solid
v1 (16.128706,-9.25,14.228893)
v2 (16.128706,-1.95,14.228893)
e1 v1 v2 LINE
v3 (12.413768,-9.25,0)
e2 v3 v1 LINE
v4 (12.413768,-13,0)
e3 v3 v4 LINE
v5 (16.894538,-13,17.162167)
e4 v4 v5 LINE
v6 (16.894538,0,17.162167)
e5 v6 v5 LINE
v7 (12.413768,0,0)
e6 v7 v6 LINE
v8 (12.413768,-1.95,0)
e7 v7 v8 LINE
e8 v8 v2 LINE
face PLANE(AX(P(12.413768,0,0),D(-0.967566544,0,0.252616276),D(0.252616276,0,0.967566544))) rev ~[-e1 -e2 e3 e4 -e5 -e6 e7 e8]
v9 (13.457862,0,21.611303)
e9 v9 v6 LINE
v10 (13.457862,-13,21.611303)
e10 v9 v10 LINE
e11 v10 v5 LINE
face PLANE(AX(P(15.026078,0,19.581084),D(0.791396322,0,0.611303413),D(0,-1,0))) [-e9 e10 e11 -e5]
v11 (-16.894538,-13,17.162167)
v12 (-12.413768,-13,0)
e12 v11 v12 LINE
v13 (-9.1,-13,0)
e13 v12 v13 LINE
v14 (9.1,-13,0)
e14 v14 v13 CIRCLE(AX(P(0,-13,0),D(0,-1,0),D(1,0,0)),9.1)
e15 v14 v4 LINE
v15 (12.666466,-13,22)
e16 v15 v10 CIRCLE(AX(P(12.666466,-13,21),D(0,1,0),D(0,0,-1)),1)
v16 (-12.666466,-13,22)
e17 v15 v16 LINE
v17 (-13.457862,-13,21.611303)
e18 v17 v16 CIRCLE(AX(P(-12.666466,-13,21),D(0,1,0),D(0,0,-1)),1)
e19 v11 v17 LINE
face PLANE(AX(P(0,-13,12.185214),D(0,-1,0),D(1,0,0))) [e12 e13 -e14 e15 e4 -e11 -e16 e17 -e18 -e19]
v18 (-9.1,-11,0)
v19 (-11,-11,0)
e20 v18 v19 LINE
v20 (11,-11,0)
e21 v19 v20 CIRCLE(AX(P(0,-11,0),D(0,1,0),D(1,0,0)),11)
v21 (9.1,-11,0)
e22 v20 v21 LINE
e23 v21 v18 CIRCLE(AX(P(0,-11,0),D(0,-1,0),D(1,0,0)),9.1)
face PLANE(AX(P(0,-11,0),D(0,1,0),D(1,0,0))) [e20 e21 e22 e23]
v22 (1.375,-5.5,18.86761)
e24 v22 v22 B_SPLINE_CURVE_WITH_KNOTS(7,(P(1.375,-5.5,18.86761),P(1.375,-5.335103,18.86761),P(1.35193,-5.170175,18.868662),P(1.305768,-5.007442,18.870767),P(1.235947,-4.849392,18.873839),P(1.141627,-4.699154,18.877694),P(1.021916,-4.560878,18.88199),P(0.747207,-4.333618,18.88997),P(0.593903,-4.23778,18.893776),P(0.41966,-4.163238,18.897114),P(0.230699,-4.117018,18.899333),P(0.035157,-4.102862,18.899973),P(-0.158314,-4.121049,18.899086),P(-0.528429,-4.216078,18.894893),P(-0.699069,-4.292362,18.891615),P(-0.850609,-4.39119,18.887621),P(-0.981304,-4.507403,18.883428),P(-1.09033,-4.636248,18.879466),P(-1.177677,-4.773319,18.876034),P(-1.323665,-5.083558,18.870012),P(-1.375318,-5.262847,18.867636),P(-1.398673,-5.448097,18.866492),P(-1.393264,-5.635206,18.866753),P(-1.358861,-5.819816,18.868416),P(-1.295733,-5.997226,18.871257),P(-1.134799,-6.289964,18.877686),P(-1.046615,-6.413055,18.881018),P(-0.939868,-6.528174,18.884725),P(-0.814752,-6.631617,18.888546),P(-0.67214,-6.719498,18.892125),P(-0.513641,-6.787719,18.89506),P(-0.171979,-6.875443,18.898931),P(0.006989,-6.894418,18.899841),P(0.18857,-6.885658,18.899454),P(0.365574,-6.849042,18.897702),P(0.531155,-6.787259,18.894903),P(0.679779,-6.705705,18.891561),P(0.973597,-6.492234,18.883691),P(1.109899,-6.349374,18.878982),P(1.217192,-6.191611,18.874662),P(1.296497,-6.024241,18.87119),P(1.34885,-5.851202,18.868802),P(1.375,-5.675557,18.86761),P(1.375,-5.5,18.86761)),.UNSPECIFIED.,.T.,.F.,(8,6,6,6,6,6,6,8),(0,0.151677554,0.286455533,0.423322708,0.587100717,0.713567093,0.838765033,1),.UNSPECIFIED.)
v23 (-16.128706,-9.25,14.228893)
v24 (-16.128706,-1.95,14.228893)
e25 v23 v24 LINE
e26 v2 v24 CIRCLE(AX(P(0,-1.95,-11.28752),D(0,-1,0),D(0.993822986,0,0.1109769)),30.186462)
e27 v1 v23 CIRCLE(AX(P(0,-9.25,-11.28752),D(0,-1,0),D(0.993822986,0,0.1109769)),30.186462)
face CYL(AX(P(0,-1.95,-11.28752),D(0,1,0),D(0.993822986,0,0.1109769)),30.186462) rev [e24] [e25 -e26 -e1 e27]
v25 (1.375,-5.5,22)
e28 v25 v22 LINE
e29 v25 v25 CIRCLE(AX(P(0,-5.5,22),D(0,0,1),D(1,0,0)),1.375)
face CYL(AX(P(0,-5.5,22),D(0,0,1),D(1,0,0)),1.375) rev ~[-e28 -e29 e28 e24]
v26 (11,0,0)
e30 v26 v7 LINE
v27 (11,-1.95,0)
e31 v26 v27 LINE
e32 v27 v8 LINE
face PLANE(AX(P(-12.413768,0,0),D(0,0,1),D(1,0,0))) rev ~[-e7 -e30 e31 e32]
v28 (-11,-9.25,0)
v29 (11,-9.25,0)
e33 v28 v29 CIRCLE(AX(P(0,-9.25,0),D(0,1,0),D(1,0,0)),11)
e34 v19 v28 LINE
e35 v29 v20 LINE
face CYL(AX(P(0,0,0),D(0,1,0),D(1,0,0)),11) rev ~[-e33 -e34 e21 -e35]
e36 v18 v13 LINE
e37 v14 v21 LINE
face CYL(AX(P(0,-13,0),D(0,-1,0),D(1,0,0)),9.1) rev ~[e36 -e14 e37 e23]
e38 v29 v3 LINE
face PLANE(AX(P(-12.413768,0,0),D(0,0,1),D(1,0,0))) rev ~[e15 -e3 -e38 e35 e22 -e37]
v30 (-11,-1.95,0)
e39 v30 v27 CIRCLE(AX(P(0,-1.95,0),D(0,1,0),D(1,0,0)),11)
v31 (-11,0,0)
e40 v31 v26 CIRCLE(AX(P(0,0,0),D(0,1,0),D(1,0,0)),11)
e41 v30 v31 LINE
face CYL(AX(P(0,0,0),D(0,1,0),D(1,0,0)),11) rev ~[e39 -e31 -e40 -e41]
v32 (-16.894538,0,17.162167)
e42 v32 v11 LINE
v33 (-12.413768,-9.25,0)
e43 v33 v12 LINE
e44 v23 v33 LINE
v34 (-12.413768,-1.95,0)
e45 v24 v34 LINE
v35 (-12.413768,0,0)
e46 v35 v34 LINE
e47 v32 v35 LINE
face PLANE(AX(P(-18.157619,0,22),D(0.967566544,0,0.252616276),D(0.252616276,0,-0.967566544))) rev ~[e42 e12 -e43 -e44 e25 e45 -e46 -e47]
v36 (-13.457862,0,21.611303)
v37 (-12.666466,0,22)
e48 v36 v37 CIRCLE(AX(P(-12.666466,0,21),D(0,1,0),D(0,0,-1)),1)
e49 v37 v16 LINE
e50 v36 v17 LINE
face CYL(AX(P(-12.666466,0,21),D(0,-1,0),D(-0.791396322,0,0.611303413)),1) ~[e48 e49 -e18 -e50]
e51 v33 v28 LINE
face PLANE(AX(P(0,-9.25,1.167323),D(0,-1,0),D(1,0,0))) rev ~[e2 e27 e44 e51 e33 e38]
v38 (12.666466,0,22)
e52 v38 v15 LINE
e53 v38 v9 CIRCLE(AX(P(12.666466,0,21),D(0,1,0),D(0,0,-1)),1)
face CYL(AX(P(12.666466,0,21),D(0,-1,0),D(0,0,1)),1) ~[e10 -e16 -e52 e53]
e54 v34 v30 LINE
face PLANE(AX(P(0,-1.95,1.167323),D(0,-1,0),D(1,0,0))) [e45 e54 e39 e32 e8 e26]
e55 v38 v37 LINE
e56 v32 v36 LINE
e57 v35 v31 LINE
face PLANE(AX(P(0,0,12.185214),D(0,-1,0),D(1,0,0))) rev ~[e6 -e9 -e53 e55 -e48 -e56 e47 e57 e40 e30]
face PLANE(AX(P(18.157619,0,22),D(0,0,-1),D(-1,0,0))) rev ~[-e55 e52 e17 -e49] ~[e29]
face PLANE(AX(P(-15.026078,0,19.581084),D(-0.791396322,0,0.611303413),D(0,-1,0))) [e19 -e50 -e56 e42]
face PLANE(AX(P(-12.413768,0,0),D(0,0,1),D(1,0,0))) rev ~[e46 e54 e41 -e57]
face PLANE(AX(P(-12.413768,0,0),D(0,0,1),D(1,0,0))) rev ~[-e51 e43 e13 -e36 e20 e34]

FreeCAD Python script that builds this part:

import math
import FreeCAD as App
import Part
import Sketcher


def edges_at(feature, points):
    """Names of the edges that pass closest to the given points."""
    edges = feature.Shape.Edges
    near = lambda p: min(range(len(edges)), key=lambda i: edges[i].distToShape(Part.Vertex(*p))[0])
    return sorted({f"Edge{near(p) + 1}" for p in points})


def add_polygon(sketch, points):
    """Adds a closed chain of lines whose ends are joined by coincident constraints."""
    first, n = sketch.GeometryCount, len(points)
    for a, b in zip(points, points[1:] + points[:1]):
        sketch.addGeometry(Part.LineSegment(App.Vector(*a, 0), App.Vector(*b, 0)), False)
    for i in range(n):
        sketch.addConstraint(Sketcher.Constraint("Coincident", first + i, 2, first + (i + 1) % n, 1))

doc = App.newDocument("Part")
body = doc.addObject("PartDesign::Body", "Body")

# Sketch on XY plane
sketch1 = doc.addObject("Sketcher::SketchObject", "Sketch")
body.addObject(sketch1)
sketch1.AttachmentSupport = (doc.XY_Plane, [""])
sketch1.MapMode = "FlatFace"
sketch1.addGeometry([
    Part.ArcOfCircle(Part.Circle(App.Vector(0, -11.28752, 0), App.Vector(0, 0, 1), 30.186462), math.radians(6.371633), math.radians(173.628367)),
    Part.LineSegment(App.Vector(-30, -7.93752, 0), App.Vector(30, -7.93752, 0)),
], False)
sketch1.addConstraint([
    Sketcher.Constraint("Coincident", 0, 1, 1, 2),
    Sketcher.Constraint("Coincident", 1, 1, 0, 2),
    Sketcher.Constraint("Horizontal", 1),
    Sketcher.Constraint("PointOnObject", 0, 3, -2),
    Sketcher.Constraint("DistanceX", 1, 1, 1, 2, 60.0),
    Sketcher.Constraint("DistanceY", 0, 3, 0, 1, 3.35),
    Sketcher.Constraint("DistanceY", 0, 3, -1, 1, 11.28752),
])
pad1 = doc.addObject("PartDesign::Pad", "Pad")
body.addObject(pad1)
pad1.Profile = sketch1
pad1.Length = 7.3
body2 = doc.addObject("PartDesign::Body", "Body001")
doc.recompute()

body.Placement = App.Placement(App.Vector(0, -1.95, 0), App.Rotation(App.Vector(1, 0, 0), 90))
boolean = doc.addObject("PartDesign::Boolean", "Boolean")
body2.addObject(boolean)
boolean.Type = "Fuse"
boolean.addObjects([body])
body3 = doc.addObject("PartDesign::Body", "Body002")

# Sketch on XZ plane
sketch2 = doc.addObject("Sketcher::SketchObject", "Sketch001")
body3.addObject(sketch2)
sketch2.AttachmentSupport = (doc.getObject("XZ_Plane002"), [""])
sketch2.MapMode = "FlatFace"
add_polygon(sketch2, [(-12.413768, 0), (12.413768, 0), (18.157619, 22), (-18.157619, 22)])  # lines 0-3
sketch2.addConstraint([
    Sketcher.Constraint("Horizontal", 0),
    Sketcher.Constraint("Horizontal", 2),
    Sketcher.Constraint("Symmetric", 0, 2, 3, 2, -1, 1),
    Sketcher.Constraint("Equal", 1, 3),
    Sketcher.Constraint("DistanceY", -1, 1, 1, 2, 22.0),
    Sketcher.Constraint("DistanceX", 0, 1, 0, 2, 24.827536),
    Sketcher.Constraint("DistanceX", 2, 2, 2, 1, 36.315238),
])
pad2 = doc.addObject("PartDesign::Pad", "Pad001")
body3.addObject(pad2)
pad2.Profile = sketch2
pad2.Length = 13

# Sketch on XZ plane
sketch3 = doc.addObject("Sketcher::SketchObject", "Sketch002")
body3.addObject(sketch3)
sketch3.AttachmentSupport = (doc.getObject("XZ_Plane002"), [""])
sketch3.MapMode = "FlatFace"
sketch3.addGeometry(Part.Circle(App.Vector(0, 0, 0), App.Vector(0, 0, 1), 11), False)
sketch3.addConstraint([
    Sketcher.Constraint("Coincident", 0, 3, -1, 1),
    Sketcher.Constraint("Diameter", 0, 22.0),
])
pocket1 = doc.addObject("PartDesign::Pocket", "Pocket")
body3.addObject(pocket1)
pocket1.Profile = sketch3
pocket1.Length = 11
pocket1.Reversed = True

# Sketch on XZ plane
sketch4 = doc.addObject("Sketcher::SketchObject", "Sketch003")
body3.addObject(sketch4)
sketch4.AttachmentSupport = (doc.getObject("XZ_Plane002"), [""])
sketch4.MapMode = "FlatFace"
sketch4.AttachmentOffset = App.Placement(App.Vector(0, 0, 13), App.Rotation())
sketch4.addGeometry(Part.Circle(App.Vector(0, 0, 0), App.Vector(0, 0, 1), 9.1), False)
sketch4.addConstraint([
    Sketcher.Constraint("Coincident", 0, 3, -1, 1),
    Sketcher.Constraint("Diameter", 0, 18.2),
])
pocket2 = doc.addObject("PartDesign::Pocket", "Pocket001")
body3.addObject(pocket2)
pocket2.Profile = sketch4
pocket2.Length = 5
doc.recompute()

boolean2 = doc.addObject("PartDesign::Boolean", "Boolean001")
body3.addObject(boolean2)
boolean2.Type = "Cut"
boolean2.addObjects([body2])

# Sketch on XY plane
sketch5 = doc.addObject("Sketcher::SketchObject", "Sketch004")
body3.addObject(sketch5)
sketch5.AttachmentSupport = (doc.getObject("XY_Plane002"), [""])
sketch5.MapMode = "FlatFace"
sketch5.AttachmentOffset = App.Placement(App.Vector(0, 0, 22), App.Rotation())
sketch5.addGeometry(Part.Circle(App.Vector(0, -5.5, 0), App.Vector(0, 0, 1), 1.375), False)
sketch5.addConstraint([
    Sketcher.Constraint("PointOnObject", 0, 3, -2),
    Sketcher.Constraint("Diameter", 0, 2.75),
    Sketcher.Constraint("DistanceY", 0, 3, -1, 1, 5.5),
])
pocket3 = doc.addObject("PartDesign::Pocket", "Pocket002")
body3.addObject(pocket3)
pocket3.Profile = sketch5
pocket3.Length = 5
doc.recompute()

chamfer = doc.addObject("PartDesign::Chamfer", "Chamfer")
body3.addObject(chamfer)
chamfer.Base = (pocket3, edges_at(pocket3, [(-18.158, -6.5, 22), (18.158, -6.5, 22)]))
chamfer.Size = 5
doc.recompute()

fillet = doc.addObject("PartDesign::Fillet", "Fillet")
body3.addObject(fillet)
fillet.Base = (chamfer, edges_at(chamfer, [(-13.158, -6.5, 22), (13.158, -6.5, 22)]))
fillet.Radius = 1

doc.recompute()
